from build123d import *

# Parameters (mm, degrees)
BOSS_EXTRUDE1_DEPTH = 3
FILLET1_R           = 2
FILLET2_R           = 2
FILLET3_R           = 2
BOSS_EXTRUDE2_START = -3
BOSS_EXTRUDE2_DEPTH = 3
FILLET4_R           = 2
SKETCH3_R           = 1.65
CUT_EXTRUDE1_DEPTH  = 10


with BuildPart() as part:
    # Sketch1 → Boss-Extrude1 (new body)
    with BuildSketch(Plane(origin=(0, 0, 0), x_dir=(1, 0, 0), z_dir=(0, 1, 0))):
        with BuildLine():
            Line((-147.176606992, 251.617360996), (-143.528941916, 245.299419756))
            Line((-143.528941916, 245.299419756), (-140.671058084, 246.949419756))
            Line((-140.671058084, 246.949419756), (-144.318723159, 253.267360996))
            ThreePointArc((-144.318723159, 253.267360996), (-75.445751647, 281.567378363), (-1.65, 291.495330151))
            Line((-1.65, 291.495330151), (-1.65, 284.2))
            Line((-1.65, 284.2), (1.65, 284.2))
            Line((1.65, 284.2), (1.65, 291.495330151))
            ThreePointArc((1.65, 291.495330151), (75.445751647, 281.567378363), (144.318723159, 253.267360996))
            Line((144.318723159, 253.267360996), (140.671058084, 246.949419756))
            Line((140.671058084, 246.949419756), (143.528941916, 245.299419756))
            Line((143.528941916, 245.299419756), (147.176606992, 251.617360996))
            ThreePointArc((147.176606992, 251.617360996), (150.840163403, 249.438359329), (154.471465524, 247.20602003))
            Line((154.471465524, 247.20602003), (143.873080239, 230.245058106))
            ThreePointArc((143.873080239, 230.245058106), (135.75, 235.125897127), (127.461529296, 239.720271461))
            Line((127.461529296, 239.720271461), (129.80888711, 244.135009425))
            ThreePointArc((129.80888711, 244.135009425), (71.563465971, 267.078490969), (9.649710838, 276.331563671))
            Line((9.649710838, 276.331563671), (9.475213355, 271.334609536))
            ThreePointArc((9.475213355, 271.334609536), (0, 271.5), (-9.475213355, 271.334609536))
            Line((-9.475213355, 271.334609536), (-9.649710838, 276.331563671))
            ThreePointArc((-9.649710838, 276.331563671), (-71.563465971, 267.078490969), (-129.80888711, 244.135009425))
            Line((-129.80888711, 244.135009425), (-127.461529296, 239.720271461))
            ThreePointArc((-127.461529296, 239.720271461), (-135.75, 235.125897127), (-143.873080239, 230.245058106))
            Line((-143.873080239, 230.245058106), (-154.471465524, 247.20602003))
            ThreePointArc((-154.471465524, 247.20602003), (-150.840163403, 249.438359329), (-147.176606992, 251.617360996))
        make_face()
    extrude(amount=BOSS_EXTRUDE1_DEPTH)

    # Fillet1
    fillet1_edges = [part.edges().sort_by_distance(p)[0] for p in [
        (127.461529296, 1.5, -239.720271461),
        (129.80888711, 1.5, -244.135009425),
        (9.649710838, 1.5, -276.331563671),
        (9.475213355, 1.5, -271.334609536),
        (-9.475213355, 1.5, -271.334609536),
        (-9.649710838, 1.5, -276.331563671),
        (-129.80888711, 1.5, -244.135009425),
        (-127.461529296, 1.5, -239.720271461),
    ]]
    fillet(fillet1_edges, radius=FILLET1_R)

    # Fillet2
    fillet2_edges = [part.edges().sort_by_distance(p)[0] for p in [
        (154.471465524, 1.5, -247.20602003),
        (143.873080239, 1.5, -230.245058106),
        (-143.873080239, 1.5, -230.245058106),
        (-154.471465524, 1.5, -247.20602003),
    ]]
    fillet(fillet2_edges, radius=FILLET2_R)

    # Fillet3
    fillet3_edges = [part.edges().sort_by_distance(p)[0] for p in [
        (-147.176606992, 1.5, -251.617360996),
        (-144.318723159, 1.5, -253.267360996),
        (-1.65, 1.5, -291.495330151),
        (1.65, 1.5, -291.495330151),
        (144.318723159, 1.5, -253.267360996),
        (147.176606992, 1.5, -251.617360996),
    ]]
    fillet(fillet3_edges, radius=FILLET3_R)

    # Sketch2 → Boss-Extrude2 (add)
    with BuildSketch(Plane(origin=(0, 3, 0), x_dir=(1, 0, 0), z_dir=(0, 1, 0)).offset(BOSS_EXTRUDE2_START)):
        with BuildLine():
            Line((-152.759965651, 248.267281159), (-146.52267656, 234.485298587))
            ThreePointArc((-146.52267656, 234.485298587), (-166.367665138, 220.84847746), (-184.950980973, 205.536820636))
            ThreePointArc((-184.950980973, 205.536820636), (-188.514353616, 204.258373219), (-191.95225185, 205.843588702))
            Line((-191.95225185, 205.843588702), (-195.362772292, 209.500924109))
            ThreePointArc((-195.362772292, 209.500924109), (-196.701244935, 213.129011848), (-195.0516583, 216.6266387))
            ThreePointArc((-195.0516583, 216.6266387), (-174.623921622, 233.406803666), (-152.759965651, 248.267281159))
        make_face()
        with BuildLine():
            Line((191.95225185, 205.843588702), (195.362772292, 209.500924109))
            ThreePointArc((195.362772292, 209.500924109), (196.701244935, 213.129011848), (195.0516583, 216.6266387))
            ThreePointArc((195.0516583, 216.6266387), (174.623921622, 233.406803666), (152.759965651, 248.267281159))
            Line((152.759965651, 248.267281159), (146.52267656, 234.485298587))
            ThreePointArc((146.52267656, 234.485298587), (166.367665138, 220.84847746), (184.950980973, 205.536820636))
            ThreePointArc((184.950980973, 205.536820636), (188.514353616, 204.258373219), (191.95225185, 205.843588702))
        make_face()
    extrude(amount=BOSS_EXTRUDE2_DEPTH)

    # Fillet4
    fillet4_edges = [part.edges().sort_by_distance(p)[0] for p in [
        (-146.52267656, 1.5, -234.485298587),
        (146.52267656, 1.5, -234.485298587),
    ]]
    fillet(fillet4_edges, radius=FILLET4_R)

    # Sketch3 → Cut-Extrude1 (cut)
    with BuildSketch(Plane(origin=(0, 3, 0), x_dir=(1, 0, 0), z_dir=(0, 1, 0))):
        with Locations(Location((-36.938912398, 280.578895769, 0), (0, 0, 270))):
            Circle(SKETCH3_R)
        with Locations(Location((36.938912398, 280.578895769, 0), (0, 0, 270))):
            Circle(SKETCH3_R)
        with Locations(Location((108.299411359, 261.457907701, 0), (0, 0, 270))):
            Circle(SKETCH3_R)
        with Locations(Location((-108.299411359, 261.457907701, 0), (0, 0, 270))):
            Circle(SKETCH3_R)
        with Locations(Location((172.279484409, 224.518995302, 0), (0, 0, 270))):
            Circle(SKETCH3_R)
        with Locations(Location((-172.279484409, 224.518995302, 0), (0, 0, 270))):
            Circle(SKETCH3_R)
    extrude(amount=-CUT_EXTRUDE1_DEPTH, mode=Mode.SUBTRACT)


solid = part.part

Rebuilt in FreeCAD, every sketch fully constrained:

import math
import FreeCAD as App
import Part
import Sketcher
from FreeCAD import Vector
Q = App.Units.Quantity


def edges_at(feature, points):
    """Names of the edges that pass closest to the given points."""
    edges = feature.Shape.Edges
    near = lambda p: min(range(len(edges)), key=lambda i: edges[i].distToShape(Part.Vertex(*p))[0])
    return sorted({f"Edge{near(p) + 1}" for p in points})

doc = App.newDocument("Part")
body = doc.addObject("PartDesign::Body", "Body")

# Sketch on XZ plane
sketch1 = doc.addObject("Sketcher::SketchObject", "Sketch")
body.addObject(sketch1)
sketch1.AttachmentSupport = (doc.XZ_Plane, [""])
sketch1.MapMode = "FlatFace"
sketch1.addGeometry([
    Part.LineSegment(Vector(-143.528942, -245.29942, 0), Vector(-147.176607, -251.617361, 0)),  # 0
    Part.ArcOfCircle(Part.Circle(Vector(0, 0.000001, 0), Vector(0, 0, 1), 291.500001), math.radians(-122), math.radians(-120.324317)),  # 1
    Part.LineSegment(Vector(-154.471466, -247.20602, 0), Vector(-143.87308, -230.245058, 0)),  # 2
    Part.ArcOfCircle(Part.Circle(Vector(0, 0, 0), Vector(0, 0, 1), 271.5), math.radians(-122), math.radians(-118)),  # 3
    Part.LineSegment(Vector(-127.461529, -239.720271, 0), Vector(-129.808887, -244.135009, 0)),  # 4
    Part.ArcOfCircle(Part.Circle(Vector(0, 0, 0), Vector(0, 0, 1), 276.5), math.radians(-118), math.radians(-92)),  # 5
    Part.LineSegment(Vector(-9.649711, -276.331564, 0), Vector(-9.475213, -271.33461, 0)),  # 6
    Part.ArcOfCircle(Part.Circle(Vector(0, 0.000001, 0), Vector(0, 0, 1), 271.500001), math.radians(-92), math.radians(-88)),  # 7
    Part.LineSegment(Vector(9.475213, -271.33461, 0), Vector(9.649711, -276.331564, 0)),  # 8
    Part.ArcOfCircle(Part.Circle(Vector(0, 0, 0), Vector(0, 0, 1), 276.5), math.radians(-88), math.radians(-62)),  # 9
    Part.LineSegment(Vector(129.808887, -244.135009, 0), Vector(127.461529, -239.720271, 0)),  # 10
    Part.ArcOfCircle(Part.Circle(Vector(0, 0, 0), Vector(0, 0, 1), 271.5), math.radians(-62), math.radians(-58)),  # 11
    Part.LineSegment(Vector(143.87308, -230.245058, 0), Vector(154.471466, -247.20602, 0)),  # 12
    Part.ArcOfCircle(Part.Circle(Vector(0, 0.000001, 0), Vector(0, 0, 1), 291.500001), math.radians(-59.675683), math.radians(-58)),  # 13
    Part.LineSegment(Vector(147.176607, -251.617361, 0), Vector(143.528942, -245.29942, 0)),  # 14
    Part.LineSegment(Vector(143.528942, -245.29942, 0), Vector(140.671058, -246.94942, 0)),  # 15
    Part.LineSegment(Vector(140.671058, -246.94942, 0), Vector(144.318723, -253.267361, 0)),  # 16
    Part.ArcOfCircle(Part.Circle(Vector(0, 0, 0), Vector(0, 0, 1), 291.5), math.radians(-89.675683), math.radians(-60.324317)),  # 17
    Part.LineSegment(Vector(1.65, -291.49533, 0), Vector(1.65, -284.2, 0)),  # 18
    Part.LineSegment(Vector(1.65, -284.2, 0), Vector(-1.65, -284.2, 0)),  # 19
    Part.LineSegment(Vector(-1.65, -284.2, 0), Vector(-1.65, -291.49533, 0)),  # 20
    Part.ArcOfCircle(Part.Circle(Vector(0, 0, 0), Vector(0, 0, 1), 291.5), math.radians(-119.675683), math.radians(-90.324317)),  # 21
    Part.LineSegment(Vector(-144.318723, -253.267361, 0), Vector(-140.671058, -246.94942, 0)),  # 22
    Part.LineSegment(Vector(-140.671058, -246.94942, 0), Vector(-143.528942, -245.29942, 0)),  # 23
], False)
sketch1.addConstraint([
    Sketcher.Constraint("Coincident", 0, 2, 1, 2),
    Sketcher.Constraint("Coincident", 1, 1, 2, 1),
    Sketcher.Constraint("Coincident", 2, 2, 3, 1),
    Sketcher.Constraint("Coincident", 3, 2, 4, 1),
    Sketcher.Constraint("Coincident", 4, 2, 5, 1),
    Sketcher.Constraint("Coincident", 5, 2, 6, 1),
    Sketcher.Constraint("Coincident", 6, 2, 7, 1),
    Sketcher.Constraint("Coincident", 7, 2, 8, 1),
    Sketcher.Constraint("Coincident", 8, 2, 9, 1),
    Sketcher.Constraint("Coincident", 9, 2, 10, 1),
    Sketcher.Constraint("Coincident", 10, 2, 11, 1),
    Sketcher.Constraint("Coincident", 11, 2, 12, 1),
    Sketcher.Constraint("Coincident", 12, 2, 13, 2),
    Sketcher.Constraint("Coincident", 13, 1, 14, 1),
    Sketcher.Constraint("Coincident", 14, 2, 15, 1),
    Sketcher.Constraint("Coincident", 15, 2, 16, 1),
    Sketcher.Constraint("Coincident", 16, 2, 17, 2),
    Sketcher.Constraint("Coincident", 17, 1, 18, 1),
    Sketcher.Constraint("Coincident", 18, 2, 19, 1),
    Sketcher.Constraint("Coincident", 19, 2, 20, 1),
    Sketcher.Constraint("Coincident", 20, 2, 21, 2),
    Sketcher.Constraint("Coincident", 21, 1, 22, 1),
    Sketcher.Constraint("Coincident", 22, 2, 23, 1),
    Sketcher.Constraint("Coincident", 23, 2, 0, 1),
    Sketcher.Constraint("Vertical", 18),
    Sketcher.Constraint("Horizontal", 19),
    Sketcher.Constraint("Vertical", 20),
    Sketcher.Constraint("Coincident", 1, 3, -1, 1),
    Sketcher.Constraint("Coincident", 3, 3, -1, 1),
    Sketcher.Constraint("Coincident", 5, 3, -1, 1),
    Sketcher.Constraint("Coincident", 7, 3, -1, 1),
    Sketcher.Constraint("Coincident", 9, 3, -1, 1),
    Sketcher.Constraint("Coincident", 11, 3, -1, 1),
    Sketcher.Constraint("Coincident", 13, 3, -1, 1),
    Sketcher.Constraint("Coincident", 17, 3, -1, 1),
    Sketcher.Constraint("Coincident", 21, 3, -1, 1),
    Sketcher.Constraint("Equal", 3, 7),
    Sketcher.Constraint("Equal", 5, 9),
    Sketcher.Constraint("Equal", 7, 11),
    Sketcher.Constraint("Equal", 1, 13),
    Sketcher.Constraint("Equal", 13, 17),
    Sketcher.Constraint("Equal", 17, 21),
    Sketcher.Constraint("Symmetric", 15, 2, 22, 2, -2),
    Sketcher.Constraint("Symmetric", 14, 2, 23, 2, -2),
    Sketcher.Constraint("Perpendicular", 14, 15),
    Sketcher.Constraint("Perpendicular", 15, 16),
    Sketcher.Constraint("Parallel", 0, 22),
    Sketcher.Constraint("Perpendicular", 22, 23),
    Sketcher.Constraint("Horizontal", 6, 2, 7, 2),
    Sketcher.Constraint("Horizontal", 5, 2, 8, 2),
    Sketcher.Constraint("Horizontal", 4, 2, 9, 2),
    Sketcher.Constraint("Horizontal", 3, 2, 10, 2),
    Sketcher.Constraint("Horizontal", 2, 2, 11, 2),
    Sketcher.Constraint("Horizontal", 1, 1, 12, 2),
    Sketcher.Constraint("Equal", 18, 20),
    Sketcher.Constraint("Equal", 14, 16),
    Sketcher.Constraint("Radius", 1, Q("291.500001 mm")),
    Sketcher.Constraint("Radius", 3, Q("271.5 mm")),
    Sketcher.Constraint("Radius", 5, Q("276.5 mm")),
    Sketcher.Constraint("Angle", 0, Q("-120 deg")),
    Sketcher.Constraint("Angle", 2, Q("58 deg")),
    Sketcher.Constraint("Angle", 4, Q("-118 deg")),
    Sketcher.Constraint("Angle", 6, Q("88 deg")),
    Sketcher.Constraint("DistanceX", 19, 2, 19, 1, Q("3.3 mm")),
    Sketcher.Constraint("Distance", 15, Q("3.3 mm")),
    Sketcher.Constraint("DistanceY", 18, 2, -1, 1, Q("284.2 mm")),
    Sketcher.Constraint("DistanceY", 6, 2, 4, 2, Q("27.1996 mm")),
    Sketcher.Constraint("DistanceX", 6, 2, 9, 2, Q("139.2841 mm")),
    Sketcher.Constraint("DistanceY", 12, 2, 14, 2, Q("1.9066 mm")),
    Sketcher.Constraint("Distance", 0, Q("7.29533 mm")),
])
pad1 = doc.addObject("PartDesign::Pad", "Pad")
body.addObject(pad1)
pad1.Profile = sketch1
pad1.Length = 3
pad1.Reversed = True
doc.recompute()

fillet = doc.addObject("PartDesign::Fillet", "Fillet")
body.addObject(fillet)
fillet.Base = (pad1, edges_at(pad1, [
    (127.462, 1.5, -239.72),
    (129.809, 1.5, -244.135),
    (9.65, 1.5, -276.332),
    (9.475, 1.5, -271.335),
    (-9.475, 1.5, -271.335),
    (-9.65, 1.5, -276.332),
    (-129.809, 1.5, -244.135),
    (-127.462, 1.5, -239.72),
]))
fillet.Radius = 2
doc.recompute()

fillet2 = doc.addObject("PartDesign::Fillet", "Fillet001")
body.addObject(fillet2)
fillet2.Base = (fillet, edges_at(fillet, [
    (154.471, 1.5, -247.206),
    (143.873, 1.5, -230.245),
    (-143.873, 1.5, -230.245),
    (-154.471, 1.5, -247.206),
]))
fillet2.Radius = 2
doc.recompute()

fillet3 = doc.addObject("PartDesign::Fillet", "Fillet002")
body.addObject(fillet3)
fillet3.Base = (fillet2, edges_at(fillet2, [
    (-147.177, 1.5, -251.617),
    (-144.319, 1.5, -253.267),
    (-1.65, 1.5, -291.495),
    (1.65, 1.5, -291.495),
    (144.319, 1.5, -253.267),
    (147.177, 1.5, -251.617),
]))
fillet3.Radius = 2

# Sketch on XZ plane
sketch2 = doc.addObject("Sketcher::SketchObject", "Sketch001")
body.addObject(sketch2)
sketch2.AttachmentSupport = (doc.XZ_Plane, [""])
sketch2.MapMode = "FlatFace"
sketch2.addGeometry([
    Part.LineSegment(Vector(-147, -234, 0), Vector(-153, -248, 0)),  # 0
    Part.ArcOfCircle(Part.Circle(Vector(0, 0, 0), Vector(0, 0, 1), 291), math.radians(-132), math.radians(-121.6)),  # 1
    Part.ArcOfCircle(Part.Circle(Vector(-192, -213, 0), Vector(0, 0, 1), 5), math.radians(137), math.radians(228)),  # 2
    Part.LineSegment(Vector(-195, -210, 0), Vector(-192, -206, 0)),  # 3
    Part.ArcOfCircle(Part.Circle(Vector(-188, -209, 0), Vector(0, 0, 1), 5), math.radians(48), math.radians(137)),  # 4
    Part.ArcOfCircle(Part.Circle(Vector(0, 0, 0), Vector(0, 0, 1), 277), math.radians(-131.98), math.radians(-122)),  # 5
    Part.LineSegment(Vector(192, -206, 0), Vector(195, -210, 0)),  # 6
    Part.ArcOfCircle(Part.Circle(Vector(192, -213, 0), Vector(0, 0, 1), 5), math.radians(-48), math.radians(43)),  # 7
    Part.ArcOfCircle(Part.Circle(Vector(0, 0, 0), Vector(0, 0, 1), 291), math.radians(-58.4), math.radians(-48)),  # 8
    Part.LineSegment(Vector(153, -248, 0), Vector(147, -234, 0)),  # 9
    Part.ArcOfCircle(Part.Circle(Vector(0, 0, 0), Vector(0, 0, 1), 277), math.radians(-58), math.radians(-48.02)),  # 10
    Part.ArcOfCircle(Part.Circle(Vector(188, -209, 0), Vector(0, 0, 1), 5), math.radians(43), math.radians(132)),  # 11
], False)
sketch2.addConstraint([
    Sketcher.Constraint("Coincident", 0, 2, 1, 2),
    Sketcher.Constraint("Tangent", 1, 1, 2, 2),
    Sketcher.Constraint("Tangent", 2, 1, 3, 1),
    Sketcher.Constraint("Tangent", 3, 2, 4, 2),
    Sketcher.Constraint("Tangent", 4, 1, 5, 1),
    Sketcher.Constraint("Coincident", 5, 2, 0, 1),
    Sketcher.Constraint("Tangent", 6, 2, 7, 2),
    Sketcher.Constraint("Tangent", 7, 1, 8, 2),
    Sketcher.Constraint("Coincident", 8, 1, 9, 1),
    Sketcher.Constraint("Coincident", 9, 2, 10, 1),
    Sketcher.Constraint("Tangent", 10, 2, 11, 2),
    Sketcher.Constraint("Tangent", 11, 1, 6, 1),
    Sketcher.Constraint("Coincident", 1, 3, -1, 1),
    Sketcher.Constraint("Coincident", 5, 3, -1, 1),
    Sketcher.Constraint("Coincident", 8, 3, -1, 1),
    Sketcher.Constraint("Coincident", 10, 3, -1, 1),
    Sketcher.Constraint("Equal", 2, 4),
    Sketcher.Constraint("Equal", 4, 7),
    Sketcher.Constraint("Equal", 1, 8),
    Sketcher.Constraint("Equal", 5, 10),
    Sketcher.Constraint("Equal", 7, 11),
    Sketcher.Constraint("Symmetric", 2, 1, 6, 2, -2),
    Sketcher.Constraint("Horizontal", 0, 2, 8, 1),
    Sketcher.Constraint("Horizontal", 5, 2, 9, 2),
    Sketcher.Constraint("Radius", 2, Q("5 mm")),
    Sketcher.Constraint("Radius", 1, Q("291.5 mm")),
    Sketcher.Constraint("Radius", 5, Q("276.5 mm")),
    Sketcher.Constraint("Angle", 3, Q("47 deg")),
    Sketcher.Constraint("Angle", 0, Q("-114.350002 deg")),
    Sketcher.Constraint("DistanceY", 9, 2, -1, 1, Q("234.485299 mm")),
    Sketcher.Constraint("DistanceY", 0, 2, 4, 3, Q("39.013701 mm")),
])
pad2 = doc.addObject("PartDesign::Pad", "Pad001")
body.addObject(pad2)
pad2.Profile = sketch2
pad2.Length = 3
pad2.Reversed = True
doc.recompute()

fillet4 = doc.addObject("PartDesign::Fillet", "Fillet003")
body.addObject(fillet4)
fillet4.Base = (pad2, edges_at(pad2, [(-146.523, 1.5, -234.485), (146.523, 1.5, -234.485)]))
fillet4.Radius = 2

# Sketch on XZ plane
sketch3 = doc.addObject("Sketcher::SketchObject", "Sketch002")
body.addObject(sketch3)
sketch3.AttachmentSupport = (doc.XZ_Plane, [""])
sketch3.MapMode = "FlatFace"
sketch3.AttachmentOffset = App.Placement(Vector(0, 0, -3), App.Rotation())
sketch3.addGeometry([
    Part.Circle(Vector(-36.9, -280.6, 0), Vector(0, 0, 1), 1.6),  # 0
    Part.Circle(Vector(36.9, -280.6, 0), Vector(0, 0, 1), 1.6),  # 1
    Part.Circle(Vector(108.3, -261.5, 0), Vector(0, 0, 1), 1.6),  # 2
    Part.Circle(Vector(-108.3, -261.5, 0), Vector(0, 0, 1), 1.6),  # 3
    Part.Circle(Vector(172.3, -224.5, 0), Vector(0, 0, 1), 1.6),  # 4
    Part.Circle(Vector(-172.3, -224.5, 0), Vector(0, 0, 1), 1.6),  # 5
], False)
sketch3.addConstraint([
    Sketcher.Constraint("Equal", 0, 1),
    Sketcher.Constraint("Equal", 1, 2),
    Sketcher.Constraint("Equal", 2, 3),
    Sketcher.Constraint("Equal", 3, 4),
    Sketcher.Constraint("Equal", 4, 5),
    Sketcher.Constraint("Symmetric", 0, 3, 1, 3, -2),
    Sketcher.Constraint("Symmetric", 2, 3, 3, 3, -2),
    Sketcher.Constraint("Symmetric", 4, 3, 5, 3, -2),
    Sketcher.Constraint("Diameter", 0, Q("3.3 mm")),
    Sketcher.Constraint("DistanceX", 1, 3, 2, 3, Q("71.360499 mm")),
    Sketcher.Constraint("DistanceY", 1, 3, 4, 3, Q("56.0599 mm")),
    Sketcher.Constraint("DistanceX", -1, 1, 2, 3, Q("108.299411 mm")),
    Sketcher.Constraint("DistanceY", 1, 3, 2, 3, Q("19.120988 mm")),
    Sketcher.Constraint("DistanceX", 5, 3, 4, 3, Q("344.558969 mm")),
    Sketcher.Constraint("DistanceY", 0, 3, -1, 1, Q("280.578896 mm")),
])
pocket1 = doc.addObject("PartDesign::Pocket", "Pocket")
body.addObject(pocket1)
pocket1.Profile = sketch3
pocket1.Length = 10
pocket1.Reversed = True

doc.recompute()
